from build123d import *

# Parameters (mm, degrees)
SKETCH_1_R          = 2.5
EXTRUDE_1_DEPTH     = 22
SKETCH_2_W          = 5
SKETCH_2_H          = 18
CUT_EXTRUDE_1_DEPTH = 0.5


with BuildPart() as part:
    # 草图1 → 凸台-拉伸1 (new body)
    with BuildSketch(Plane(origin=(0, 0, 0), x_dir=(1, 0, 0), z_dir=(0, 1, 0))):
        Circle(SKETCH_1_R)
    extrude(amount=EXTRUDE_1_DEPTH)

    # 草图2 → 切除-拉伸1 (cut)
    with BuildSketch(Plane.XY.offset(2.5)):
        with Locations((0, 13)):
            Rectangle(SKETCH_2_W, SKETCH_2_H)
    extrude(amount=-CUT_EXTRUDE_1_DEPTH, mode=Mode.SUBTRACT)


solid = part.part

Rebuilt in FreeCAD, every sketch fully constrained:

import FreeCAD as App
import Part
import Sketcher
Q = App.Units.Quantity

doc = App.newDocument("Part")
body = doc.addObject("PartDesign::Body", "Body")

# Sketch on XZ plane
sketch1 = body.newObject("Sketcher::SketchObject", "Sketch")
sketch1.AttachmentSupport = (doc.getObject("XZ_Plane"), [""])
sketch1.MapMode = "FlatFace"
sketch1.addGeometry(Part.Circle(App.Vector(0, 0, 0), App.Vector(0, 0, 1), 2.5), False)
sketch1.addConstraint([
    Sketcher.Constraint("Coincident", 0, 3, -1, 1),
    Sketcher.Constraint("Diameter", 0, Q("5 mm")),
])
pad1 = body.newObject("PartDesign::Pad", "Pad")
pad1.Profile = sketch1
pad1.Length = 22
pad1.Reversed = True

# Sketch on XY plane
sketch2 = body.newObject("Sketcher::SketchObject", "Sketch001")
sketch2.AttachmentSupport = (doc.getObject("XY_Plane"), [""])
sketch2.MapMode = "FlatFace"
sketch2.AttachmentOffset = App.Placement(App.Vector(0, 0, 2.5), App.Rotation())
sketch2.addGeometry([
    Part.LineSegment(App.Vector(-2, 22, 0), App.Vector(-2, 4, 0)),
    Part.LineSegment(App.Vector(-2, 4, 0), App.Vector(2, 4, 0)),
    Part.LineSegment(App.Vector(2, 4, 0), App.Vector(2, 22, 0)),
    Part.LineSegment(App.Vector(2, 22, 0), App.Vector(-2, 22, 0)),
], False)
sketch2.addConstraint([
    Sketcher.Constraint("Coincident", 0, 2, 1, 1),
    Sketcher.Constraint("Coincident", 1, 2, 2, 1),
    Sketcher.Constraint("Coincident", 2, 2, 3, 1),
    Sketcher.Constraint("Coincident", 3, 2, 0, 1),
    Sketcher.Constraint("Vertical", 0),
    Sketcher.Constraint("Horizontal", 1),
    Sketcher.Constraint("Vertical", 2),
    Sketcher.Constraint("Horizontal", 3),
    Sketcher.Constraint("DistanceX", 1, 1, 1, 2, Q("5 mm")),
    Sketcher.Constraint("DistanceY", 0, 2, 0, 1, Q("18 mm")),
    Sketcher.Constraint("DistanceY", -1, 1, 0, 2, Q("4 mm")),
    Sketcher.Constraint("DistanceX", 0, 2, -1, 1, Q("2.5 mm")),
])
pocket1 = body.newObject("PartDesign::Pocket", "Pocket")
pocket1.Profile = sketch2
pocket1.Length = 0.5

doc.recompute()
